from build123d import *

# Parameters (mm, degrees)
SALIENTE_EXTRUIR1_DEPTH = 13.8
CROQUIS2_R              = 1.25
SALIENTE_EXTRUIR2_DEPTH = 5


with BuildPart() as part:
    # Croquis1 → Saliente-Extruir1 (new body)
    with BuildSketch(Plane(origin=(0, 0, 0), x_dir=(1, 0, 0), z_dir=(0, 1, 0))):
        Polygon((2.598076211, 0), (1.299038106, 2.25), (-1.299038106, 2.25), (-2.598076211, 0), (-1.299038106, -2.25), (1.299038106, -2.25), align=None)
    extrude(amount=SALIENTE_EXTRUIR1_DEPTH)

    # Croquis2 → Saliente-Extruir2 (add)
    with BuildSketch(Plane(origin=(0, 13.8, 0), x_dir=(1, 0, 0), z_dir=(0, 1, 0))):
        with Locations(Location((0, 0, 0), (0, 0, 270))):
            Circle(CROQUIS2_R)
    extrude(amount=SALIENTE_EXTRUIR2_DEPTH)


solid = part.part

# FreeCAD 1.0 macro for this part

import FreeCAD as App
import Part
import Sketcher
from FreeCAD import Vector
Q = App.Units.Quantity

doc = App.newDocument("Part")
body = doc.addObject("PartDesign::Body", "Body")

sketch1 = body.newObject("Sketcher::SketchObject", "Sketch")
sketch1.AttachmentSupport = (doc.getObject("XZ_Plane"), [""])
sketch1.MapMode = "FlatFace"
sketch1.addGeometry(Part.LineSegment(Vector(2.6, 0, 0), Vector(1.3, -2.2, 0)), False)
sketch1.addGeometry(Part.LineSegment(Vector(1.3, -2.2, 0), Vector(-1.3, -2.2, 0)), False)
sketch1.addGeometry(Part.LineSegment(Vector(-1.3, -2.2, 0), Vector(-2.6, 0, 0)), False)
sketch1.addGeometry(Part.LineSegment(Vector(-2.6, 0, 0), Vector(-1.3, 2.2, 0)), False)
sketch1.addGeometry(Part.LineSegment(Vector(-1.3, 2.2, 0), Vector(1.3, 2.2, 0)), False)
sketch1.addGeometry(Part.LineSegment(Vector(1.3, 2.2, 0), Vector(2.6, 0, 0)), False)
sketch1.addConstraint(Sketcher.Constraint("Coincident", 0, 2, 1, 1))
sketch1.addConstraint(Sketcher.Constraint("Coincident", 1, 2, 2, 1))
sketch1.addConstraint(Sketcher.Constraint("Coincident", 2, 2, 3, 1))
sketch1.addConstraint(Sketcher.Constraint("Coincident", 3, 2, 4, 1))
sketch1.addConstraint(Sketcher.Constraint("Coincident", 4, 2, 5, 1))
sketch1.addConstraint(Sketcher.Constraint("Coincident", 5, 2, 0, 1))
sketch1.addConstraint(Sketcher.Constraint("Horizontal", 1))
sketch1.addConstraint(Sketcher.Constraint("Horizontal", 4))
sketch1.addConstraint(Sketcher.Constraint("Symmetric", 0, 2, 3, 2, -1, 1))
sketch1.addConstraint(Sketcher.Constraint("Symmetric", 2, 2, 5, 2, -1, 1))
sketch1.addConstraint(Sketcher.Constraint("PointOnObject", 2, 2, -1))
sketch1.addConstraint(Sketcher.Constraint("Parallel", 2, 5))
sketch1.addConstraint(Sketcher.Constraint("Vertical", 1, 2, 3, 2))
sketch1.addConstraint(Sketcher.Constraint("Angle", 0, Q("-120 deg")))
sketch1.addConstraint(Sketcher.Constraint("DistanceY", 1, 2, 3, 2, 4.5))
sketch1.addConstraint(Sketcher.Constraint("DistanceX", 1, 2, 1, 1, 2.598076))
pad1 = body.newObject("PartDesign::Pad", "Pad")
pad1.Profile = sketch1
pad1.Length = 13.8
pad1.Reversed = True

sketch2 = body.newObject("Sketcher::SketchObject", "Sketch001")
sketch2.AttachmentSupport = (doc.getObject("XZ_Plane"), [""])
sketch2.MapMode = "FlatFace"
sketch2.AttachmentOffset = App.Placement(Vector(0, 0, -13.8), App.Rotation())
sketch2.addGeometry(Part.Circle(Vector(0, 0, 0), Vector(0, 0, 1), 1.2), False)
sketch2.addConstraint(Sketcher.Constraint("Coincident", 0, 3, -1, 1))
sketch2.addConstraint(Sketcher.Constraint("Diameter", 0, 2.5))
pad2 = body.newObject("PartDesign::Pad", "Pad001")
pad2.Profile = sketch2
pad2.Length = 5
pad2.Reversed = True

doc.recompute()
